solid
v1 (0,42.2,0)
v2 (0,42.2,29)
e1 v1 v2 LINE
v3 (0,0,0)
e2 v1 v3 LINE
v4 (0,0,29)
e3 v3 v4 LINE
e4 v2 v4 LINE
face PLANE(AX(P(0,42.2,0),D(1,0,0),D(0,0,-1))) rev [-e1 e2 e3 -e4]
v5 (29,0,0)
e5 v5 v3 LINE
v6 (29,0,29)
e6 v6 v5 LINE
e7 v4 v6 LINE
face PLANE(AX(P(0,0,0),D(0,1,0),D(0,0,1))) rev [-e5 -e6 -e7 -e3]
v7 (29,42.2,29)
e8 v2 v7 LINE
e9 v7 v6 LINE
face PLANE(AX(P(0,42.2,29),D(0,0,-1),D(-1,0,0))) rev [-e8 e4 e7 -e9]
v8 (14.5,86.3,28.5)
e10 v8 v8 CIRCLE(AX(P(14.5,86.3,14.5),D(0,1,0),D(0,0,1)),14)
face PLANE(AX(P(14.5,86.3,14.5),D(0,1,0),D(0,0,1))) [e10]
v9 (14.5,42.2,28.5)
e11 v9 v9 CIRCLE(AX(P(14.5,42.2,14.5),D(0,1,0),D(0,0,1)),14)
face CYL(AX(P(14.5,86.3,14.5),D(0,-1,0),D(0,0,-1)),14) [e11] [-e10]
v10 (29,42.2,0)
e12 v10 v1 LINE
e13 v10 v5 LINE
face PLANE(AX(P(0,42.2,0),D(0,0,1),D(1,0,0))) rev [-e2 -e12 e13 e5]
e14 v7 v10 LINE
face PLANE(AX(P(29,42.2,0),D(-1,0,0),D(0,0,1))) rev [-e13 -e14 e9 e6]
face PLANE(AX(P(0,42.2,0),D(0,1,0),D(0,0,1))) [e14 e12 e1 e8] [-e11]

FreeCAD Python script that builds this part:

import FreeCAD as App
import Part
import Sketcher
Q = App.Units.Quantity


def add_polygon(sketch, points):
    """Adds a closed chain of lines whose ends are joined by coincident constraints."""
    first, n = sketch.GeometryCount, len(points)
    for a, b in zip(points, points[1:] + points[:1]):
        sketch.addGeometry(Part.LineSegment(App.Vector(*a, 0), App.Vector(*b, 0)), False)
    for i in range(n):
        sketch.addConstraint(Sketcher.Constraint("Coincident", first + i, 2, first + (i + 1) % n, 1))

doc = App.newDocument("Part")
params = doc.addObject("Spreadsheet::Sheet", "Params")
for row, (alias, value) in enumerate([
    ("sketch1_width", "29 mm"),
    ("pad1_length", "42.2 mm"),
    ("sketch2_diameter", "28 mm"),
    ("pad2_length", "44.1 mm"),
], start=1):
    params.set(f"A{row}", alias)
    params.set(f"B{row}", "=" + value)
    params.setAlias(f"B{row}", alias)

body = doc.addObject("PartDesign::Body", "Body")

# Sketch on XZ plane
sketch1 = body.newObject("Sketcher::SketchObject", "Sketch")
sketch1.AttachmentSupport = (doc.getObject("XZ_Plane"), [""])
sketch1.MapMode = "FlatFace"
add_polygon(sketch1, [(0, 0), (0, 29), (29, 29), (29, 0)])  # lines 0-3
sketch1.addConstraint(Sketcher.Constraint("Vertical", 0))
sketch1.addConstraint(Sketcher.Constraint("Horizontal", 1))
sketch1.addConstraint(Sketcher.Constraint("Vertical", 2))
sketch1.addConstraint(Sketcher.Constraint("Horizontal", 3))
sketch1.addConstraint(Sketcher.Constraint("Coincident", 3, 2, -1, 1))
sketch1.addConstraint(Sketcher.Constraint("Equal", 3, 0))
sketch1.addConstraint(Sketcher.Constraint("DistanceX", 1, 1, 1, 2, Q("29 mm")))
sketch1.setExpression("Constraints[10]", "Params.sketch1_width")
pad1 = body.newObject("PartDesign::Pad", "Pad")
pad1.Profile = sketch1
pad1.setExpression("Length", "Params.pad1_length")
pad1.Reversed = True

# Sketch on XZ plane
sketch2 = body.newObject("Sketcher::SketchObject", "Sketch001")
sketch2.AttachmentSupport = (doc.getObject("XZ_Plane"), [""])
sketch2.MapMode = "FlatFace"
sketch2.AttachmentOffset = App.Placement(App.Vector(0, 0, -42.2), App.Rotation())
sketch2.addGeometry(Part.Circle(App.Vector(14, 14, 0), App.Vector(0, 0, 1), 14), False)
sketch2.addConstraint(Sketcher.Constraint("Diameter", 0, Q("28 mm")))
sketch2.addConstraint(Sketcher.Constraint("DistanceX", -1, 1, 0, 3, Q("14.5 mm")))
sketch2.addConstraint(Sketcher.Constraint("DistanceY", -1, 1, 0, 3, Q("14.5 mm")))
sketch2.setExpression("Constraints[0]", "Params.sketch2_diameter")
pad2 = body.newObject("PartDesign::Pad", "Pad001")
pad2.Profile = sketch2
pad2.setExpression("Length", "Params.pad2_length")
pad2.Reversed = True

doc.recompute()
